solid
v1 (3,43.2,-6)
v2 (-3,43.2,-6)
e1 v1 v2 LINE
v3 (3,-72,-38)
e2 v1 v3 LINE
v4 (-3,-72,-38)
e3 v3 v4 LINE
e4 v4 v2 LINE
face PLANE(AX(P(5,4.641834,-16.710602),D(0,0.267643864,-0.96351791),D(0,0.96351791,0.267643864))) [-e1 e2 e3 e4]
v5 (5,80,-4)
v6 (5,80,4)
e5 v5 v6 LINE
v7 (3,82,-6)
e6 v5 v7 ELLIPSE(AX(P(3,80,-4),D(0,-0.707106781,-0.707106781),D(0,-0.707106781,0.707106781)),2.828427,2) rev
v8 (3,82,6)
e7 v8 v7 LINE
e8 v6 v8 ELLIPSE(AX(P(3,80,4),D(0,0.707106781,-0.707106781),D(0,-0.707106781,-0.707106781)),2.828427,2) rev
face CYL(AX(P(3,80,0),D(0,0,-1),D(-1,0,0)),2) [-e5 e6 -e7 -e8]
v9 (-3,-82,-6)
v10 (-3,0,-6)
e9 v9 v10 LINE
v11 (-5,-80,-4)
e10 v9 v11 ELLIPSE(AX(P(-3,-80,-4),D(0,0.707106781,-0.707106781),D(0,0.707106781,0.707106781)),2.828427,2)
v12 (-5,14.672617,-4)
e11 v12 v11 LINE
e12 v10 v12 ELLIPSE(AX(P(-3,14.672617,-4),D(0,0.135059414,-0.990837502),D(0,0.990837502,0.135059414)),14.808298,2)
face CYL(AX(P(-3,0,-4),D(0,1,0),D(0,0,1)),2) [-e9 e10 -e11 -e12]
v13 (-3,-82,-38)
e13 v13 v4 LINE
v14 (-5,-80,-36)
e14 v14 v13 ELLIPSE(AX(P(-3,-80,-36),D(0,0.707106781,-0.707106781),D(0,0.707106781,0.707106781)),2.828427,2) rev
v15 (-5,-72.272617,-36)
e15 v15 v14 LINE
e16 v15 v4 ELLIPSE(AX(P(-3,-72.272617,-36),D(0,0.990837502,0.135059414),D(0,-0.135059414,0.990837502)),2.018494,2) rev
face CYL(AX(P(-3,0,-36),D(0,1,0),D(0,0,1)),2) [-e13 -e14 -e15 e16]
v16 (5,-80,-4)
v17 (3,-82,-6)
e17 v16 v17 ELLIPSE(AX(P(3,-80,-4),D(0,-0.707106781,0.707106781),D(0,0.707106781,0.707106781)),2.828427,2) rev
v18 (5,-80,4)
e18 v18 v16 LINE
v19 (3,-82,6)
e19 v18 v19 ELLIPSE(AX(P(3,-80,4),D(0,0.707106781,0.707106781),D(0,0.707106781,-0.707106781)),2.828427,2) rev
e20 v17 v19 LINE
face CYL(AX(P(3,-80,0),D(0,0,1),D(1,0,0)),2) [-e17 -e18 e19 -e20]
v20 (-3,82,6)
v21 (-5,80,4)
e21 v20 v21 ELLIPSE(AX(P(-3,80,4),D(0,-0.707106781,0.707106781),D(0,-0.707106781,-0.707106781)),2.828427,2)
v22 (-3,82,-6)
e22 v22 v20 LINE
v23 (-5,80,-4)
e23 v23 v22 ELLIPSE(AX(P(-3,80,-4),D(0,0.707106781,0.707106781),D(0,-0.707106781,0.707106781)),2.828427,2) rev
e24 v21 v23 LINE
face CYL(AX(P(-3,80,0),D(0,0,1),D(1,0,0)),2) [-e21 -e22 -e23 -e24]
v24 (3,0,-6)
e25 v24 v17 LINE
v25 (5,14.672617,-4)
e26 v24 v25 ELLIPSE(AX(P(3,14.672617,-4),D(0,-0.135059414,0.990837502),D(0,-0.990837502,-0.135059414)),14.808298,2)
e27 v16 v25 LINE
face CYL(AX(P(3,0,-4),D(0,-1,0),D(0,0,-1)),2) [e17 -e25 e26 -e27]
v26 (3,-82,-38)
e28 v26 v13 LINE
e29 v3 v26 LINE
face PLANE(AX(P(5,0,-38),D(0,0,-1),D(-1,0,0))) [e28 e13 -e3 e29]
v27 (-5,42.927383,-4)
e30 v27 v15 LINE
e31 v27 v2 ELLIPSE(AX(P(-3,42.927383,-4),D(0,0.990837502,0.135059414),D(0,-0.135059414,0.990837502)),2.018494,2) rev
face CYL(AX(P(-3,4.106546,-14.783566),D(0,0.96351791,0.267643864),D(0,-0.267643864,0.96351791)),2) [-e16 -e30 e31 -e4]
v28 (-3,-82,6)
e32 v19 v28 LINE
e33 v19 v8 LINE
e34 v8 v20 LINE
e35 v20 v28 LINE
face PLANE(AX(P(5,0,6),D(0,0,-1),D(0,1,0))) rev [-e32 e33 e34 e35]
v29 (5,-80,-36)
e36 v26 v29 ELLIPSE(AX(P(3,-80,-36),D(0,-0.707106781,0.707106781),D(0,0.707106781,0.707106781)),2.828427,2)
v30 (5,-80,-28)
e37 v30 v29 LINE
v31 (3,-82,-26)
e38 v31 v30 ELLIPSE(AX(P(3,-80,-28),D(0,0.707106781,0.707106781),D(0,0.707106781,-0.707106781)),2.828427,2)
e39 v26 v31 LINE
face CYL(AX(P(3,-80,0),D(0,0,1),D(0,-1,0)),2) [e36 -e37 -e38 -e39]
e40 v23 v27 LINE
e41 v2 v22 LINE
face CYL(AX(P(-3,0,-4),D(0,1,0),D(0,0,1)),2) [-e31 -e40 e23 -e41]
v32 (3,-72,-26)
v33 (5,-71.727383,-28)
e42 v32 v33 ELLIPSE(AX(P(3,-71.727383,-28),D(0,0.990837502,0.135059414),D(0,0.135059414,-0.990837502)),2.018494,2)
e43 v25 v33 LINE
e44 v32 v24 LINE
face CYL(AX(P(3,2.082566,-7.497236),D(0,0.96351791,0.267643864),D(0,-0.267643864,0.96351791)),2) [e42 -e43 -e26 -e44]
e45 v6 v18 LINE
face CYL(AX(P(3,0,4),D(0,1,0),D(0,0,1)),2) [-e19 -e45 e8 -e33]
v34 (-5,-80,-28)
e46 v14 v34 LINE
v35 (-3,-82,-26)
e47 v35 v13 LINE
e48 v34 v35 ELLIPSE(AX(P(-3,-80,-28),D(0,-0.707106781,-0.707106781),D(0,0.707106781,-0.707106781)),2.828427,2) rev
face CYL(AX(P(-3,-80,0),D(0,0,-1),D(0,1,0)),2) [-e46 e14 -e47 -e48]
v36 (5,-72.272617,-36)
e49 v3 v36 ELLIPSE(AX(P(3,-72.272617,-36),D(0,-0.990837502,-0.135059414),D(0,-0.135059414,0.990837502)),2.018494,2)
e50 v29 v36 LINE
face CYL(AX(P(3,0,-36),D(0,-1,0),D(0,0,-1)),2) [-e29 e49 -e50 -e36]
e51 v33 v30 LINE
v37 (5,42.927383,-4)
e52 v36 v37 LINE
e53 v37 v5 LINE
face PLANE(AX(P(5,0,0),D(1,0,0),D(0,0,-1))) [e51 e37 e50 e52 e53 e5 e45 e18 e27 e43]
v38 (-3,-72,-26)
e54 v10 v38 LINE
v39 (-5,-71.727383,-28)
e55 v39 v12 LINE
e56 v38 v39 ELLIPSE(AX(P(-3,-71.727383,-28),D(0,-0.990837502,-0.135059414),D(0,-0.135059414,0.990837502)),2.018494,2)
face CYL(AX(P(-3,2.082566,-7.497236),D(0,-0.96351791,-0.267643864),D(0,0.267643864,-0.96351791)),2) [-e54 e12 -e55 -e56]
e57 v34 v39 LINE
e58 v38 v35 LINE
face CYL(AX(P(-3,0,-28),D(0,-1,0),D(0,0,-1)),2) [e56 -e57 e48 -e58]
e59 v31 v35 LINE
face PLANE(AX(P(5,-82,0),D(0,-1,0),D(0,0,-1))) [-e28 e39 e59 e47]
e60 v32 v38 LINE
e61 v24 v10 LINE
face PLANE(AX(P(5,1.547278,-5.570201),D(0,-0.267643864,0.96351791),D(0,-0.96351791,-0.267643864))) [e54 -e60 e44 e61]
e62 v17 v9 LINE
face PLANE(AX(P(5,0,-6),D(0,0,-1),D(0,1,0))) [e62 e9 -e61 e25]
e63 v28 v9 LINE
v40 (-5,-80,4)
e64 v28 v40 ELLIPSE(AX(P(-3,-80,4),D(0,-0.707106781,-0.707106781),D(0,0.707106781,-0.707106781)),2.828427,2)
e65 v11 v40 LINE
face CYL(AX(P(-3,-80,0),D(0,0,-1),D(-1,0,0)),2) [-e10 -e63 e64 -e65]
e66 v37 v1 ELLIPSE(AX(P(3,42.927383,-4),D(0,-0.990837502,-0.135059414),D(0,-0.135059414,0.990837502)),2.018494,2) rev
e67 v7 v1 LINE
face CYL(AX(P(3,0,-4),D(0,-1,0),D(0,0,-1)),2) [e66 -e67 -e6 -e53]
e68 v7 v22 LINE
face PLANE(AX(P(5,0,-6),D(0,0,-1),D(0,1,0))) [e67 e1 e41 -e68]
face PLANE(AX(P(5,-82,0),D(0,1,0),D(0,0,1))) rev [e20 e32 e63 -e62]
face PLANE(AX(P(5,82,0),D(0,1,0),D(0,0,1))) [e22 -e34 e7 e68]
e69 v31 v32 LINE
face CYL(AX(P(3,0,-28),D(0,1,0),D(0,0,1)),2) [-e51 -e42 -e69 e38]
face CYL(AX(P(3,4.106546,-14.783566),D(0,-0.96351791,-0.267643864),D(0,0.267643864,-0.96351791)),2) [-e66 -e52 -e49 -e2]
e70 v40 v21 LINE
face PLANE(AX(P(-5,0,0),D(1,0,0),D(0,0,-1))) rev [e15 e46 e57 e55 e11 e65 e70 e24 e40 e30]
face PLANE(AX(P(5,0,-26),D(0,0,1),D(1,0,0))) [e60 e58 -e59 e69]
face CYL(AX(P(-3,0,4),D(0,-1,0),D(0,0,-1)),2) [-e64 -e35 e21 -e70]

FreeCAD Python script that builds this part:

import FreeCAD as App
import Part
import Sketcher
from FreeCAD import Vector


def edges_at(feature, points):
    """Names of the edges that pass closest to the given points."""
    edges = feature.Shape.Edges
    near = lambda p: min(range(len(edges)), key=lambda i: edges[i].distToShape(Part.Vertex(*p))[0])
    return sorted({f"Edge{near(p) + 1}" for p in points})


def add_polygon(sketch, points):
    """Adds a closed chain of lines whose ends are joined by coincident constraints."""
    first, n = sketch.GeometryCount, len(points)
    for a, b in zip(points, points[1:] + points[:1]):
        sketch.addGeometry(Part.LineSegment(App.Vector(*a, 0), App.Vector(*b, 0)), False)
    for i in range(n):
        sketch.addConstraint(Sketcher.Constraint("Coincident", first + i, 2, first + (i + 1) % n, 1))

doc = App.newDocument("Part")
body = doc.addObject("PartDesign::Body", "Body")

# Sketch on YZ plane
sketch1 = doc.addObject("Sketcher::SketchObject", "Sketch")
body.addObject(sketch1)
sketch1.AttachmentSupport = (doc.YZ_Plane, [""])
sketch1.MapMode = "FlatFace"
add_polygon(sketch1, [(-72, -38), (43.2, -6), (82, -6), (82, 6), (-82, 6), (-82, -6), (0, -6), (-72, -26), (-82, -26), (-82, -38)])  # lines 0-9
sketch1.addConstraint(Sketcher.Constraint("Horizontal", 1))
sketch1.addConstraint(Sketcher.Constraint("Vertical", 2))
sketch1.addConstraint(Sketcher.Constraint("Horizontal", 3))
sketch1.addConstraint(Sketcher.Constraint("Vertical", 4))
sketch1.addConstraint(Sketcher.Constraint("Horizontal", 5))
sketch1.addConstraint(Sketcher.Constraint("Horizontal", 7))
sketch1.addConstraint(Sketcher.Constraint("Vertical", 8))
sketch1.addConstraint(Sketcher.Constraint("Horizontal", 9))
sketch1.addConstraint(Sketcher.Constraint("Symmetric", 1, 2, 3, 2, -1, 1))
sketch1.addConstraint(Sketcher.Constraint("PointOnObject", 5, 2, -2))
sketch1.addConstraint(Sketcher.Constraint("Parallel", 0, 6))
sketch1.addConstraint(Sketcher.Constraint("Horizontal", 1, 2, 4, 2))
sketch1.addConstraint(Sketcher.Constraint("Vertical", 4, 2, 7, 2))
sketch1.addConstraint(Sketcher.Constraint("Vertical", 6, 2, 9, 2))
sketch1.addConstraint(Sketcher.Constraint("Equal", 4, 8))
sketch1.addConstraint(Sketcher.Constraint("DistanceX", 3, 2, 3, 1, 164.0))
sketch1.addConstraint(Sketcher.Constraint("DistanceX", 7, 2, 7, 1, 10.0))
sketch1.addConstraint(Sketcher.Constraint("DistanceY", 2, 1, 2, 2, 12.0))
sketch1.addConstraint(Sketcher.Constraint("DistanceX", 1, 1, 1, 2, 38.8))
pad1 = doc.addObject("PartDesign::Pad", "Pad")
body.addObject(pad1)
pad1.Profile = sketch1
pad1.Length = 10
pad1.Midplane = True
doc.recompute()

fillet = doc.addObject("PartDesign::Fillet", "Fillet")
body.addObject(fillet)
fillet.Base = (pad1, edges_at(pad1, [
    (5, -77, -26),
    (-5, -41, -6),
    (-5, -82, 0),
    (-5, 0, 6),
    (-5, 82, 0),
    (-5, 62.6, -6),
    (-5, -14.4, -22),
    (-5, -77, -38),
    (5, -82, -32),
    (-5, -82, -32),
    (-5, -77, -26),
    (-5, -36, -16),
    (5, -77, -38),
    (5, -14.4, -22),
    (5, 62.6, -6),
    (5, 82, 0),
    (5, 0, 6),
    (5, -82, 0),
    (5, -36, -16),
    (5, -41, -6),
]))
fillet.Radius = 2

doc.recompute()
